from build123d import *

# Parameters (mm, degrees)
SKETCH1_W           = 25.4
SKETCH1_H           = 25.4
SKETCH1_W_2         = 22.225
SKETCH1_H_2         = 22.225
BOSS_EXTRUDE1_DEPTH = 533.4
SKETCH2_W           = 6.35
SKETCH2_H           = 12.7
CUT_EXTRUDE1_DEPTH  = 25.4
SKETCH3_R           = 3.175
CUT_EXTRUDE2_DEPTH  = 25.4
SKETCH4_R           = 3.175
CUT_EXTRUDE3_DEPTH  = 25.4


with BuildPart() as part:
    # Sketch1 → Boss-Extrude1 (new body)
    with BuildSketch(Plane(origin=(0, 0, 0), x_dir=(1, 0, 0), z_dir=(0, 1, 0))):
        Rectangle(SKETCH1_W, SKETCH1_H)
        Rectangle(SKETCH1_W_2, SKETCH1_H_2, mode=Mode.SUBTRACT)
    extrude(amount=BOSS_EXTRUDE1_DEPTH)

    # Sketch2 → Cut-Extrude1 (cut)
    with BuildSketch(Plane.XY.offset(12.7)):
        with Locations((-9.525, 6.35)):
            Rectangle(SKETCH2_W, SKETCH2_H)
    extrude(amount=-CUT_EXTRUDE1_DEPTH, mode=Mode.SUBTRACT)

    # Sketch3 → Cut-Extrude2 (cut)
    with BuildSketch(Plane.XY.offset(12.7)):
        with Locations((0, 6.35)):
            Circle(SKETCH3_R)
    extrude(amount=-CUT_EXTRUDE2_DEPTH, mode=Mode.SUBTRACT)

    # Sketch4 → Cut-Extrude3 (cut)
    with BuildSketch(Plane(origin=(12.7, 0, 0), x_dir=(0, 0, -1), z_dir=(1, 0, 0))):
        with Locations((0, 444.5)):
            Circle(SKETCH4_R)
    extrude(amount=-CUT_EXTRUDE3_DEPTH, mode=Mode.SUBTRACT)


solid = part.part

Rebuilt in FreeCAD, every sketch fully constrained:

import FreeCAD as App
import Part
import Sketcher
from FreeCAD import Vector
Q = App.Units.Quantity

doc = App.newDocument("Part")
body = doc.addObject("PartDesign::Body", "Body")

# Sketch on XZ plane
sketch1 = doc.addObject("Sketcher::SketchObject", "Sketch")
body.addObject(sketch1)
sketch1.AttachmentSupport = (doc.XZ_Plane, [""])
sketch1.MapMode = "FlatFace"
sketch1.addGeometry([
    Part.LineSegment(Vector(-13, -13, 0), Vector(-13, 13, 0)),  # 0
    Part.LineSegment(Vector(-13, 13, 0), Vector(13, 13, 0)),  # 1
    Part.LineSegment(Vector(13, 13, 0), Vector(13, -13, 0)),  # 2
    Part.LineSegment(Vector(13, -13, 0), Vector(-13, -13, 0)),  # 3
    Part.LineSegment(Vector(11, 11, 0), Vector(-11, 11, 0)),  # 4
    Part.LineSegment(Vector(-11, 11, 0), Vector(-11, -11, 0)),  # 5
    Part.LineSegment(Vector(-11, -11, 0), Vector(11, -11, 0)),  # 6
    Part.LineSegment(Vector(11, -11, 0), Vector(11, 11, 0)),  # 7
], False)
sketch1.addConstraint([
    Sketcher.Constraint("Coincident", 0, 2, 1, 1),
    Sketcher.Constraint("Coincident", 1, 2, 2, 1),
    Sketcher.Constraint("Coincident", 2, 2, 3, 1),
    Sketcher.Constraint("Coincident", 3, 2, 0, 1),
    Sketcher.Constraint("Coincident", 4, 2, 5, 1),
    Sketcher.Constraint("Coincident", 5, 2, 6, 1),
    Sketcher.Constraint("Coincident", 6, 2, 7, 1),
    Sketcher.Constraint("Coincident", 7, 2, 4, 1),
    Sketcher.Constraint("Vertical", 0),
    Sketcher.Constraint("Horizontal", 1),
    Sketcher.Constraint("Vertical", 2),
    Sketcher.Constraint("Horizontal", 3),
    Sketcher.Constraint("Horizontal", 4),
    Sketcher.Constraint("Vertical", 5),
    Sketcher.Constraint("Horizontal", 6),
    Sketcher.Constraint("Vertical", 7),
    Sketcher.Constraint("Symmetric", 0, 2, 2, 2, -1, 1),
    Sketcher.Constraint("Symmetric", 4, 2, 6, 2, -1, 1),
    Sketcher.Constraint("Equal", 3, 0),
    Sketcher.Constraint("Equal", 6, 5),
    Sketcher.Constraint("DistanceX", 1, 1, 1, 2, Q("1 in")),
    Sketcher.Constraint("DistanceX", 4, 2, 4, 1, Q("0.875 in")),
])
pad1 = doc.addObject("PartDesign::Pad", "Pad")
body.addObject(pad1)
pad1.Profile = sketch1
pad1.Length = Q("21 in")
pad1.Reversed = True

# Sketch on XY plane
sketch2 = doc.addObject("Sketcher::SketchObject", "Sketch001")
body.addObject(sketch2)
sketch2.AttachmentSupport = (doc.XY_Plane, [""])
sketch2.MapMode = "FlatFace"
sketch2.AttachmentOffset = App.Placement(Vector(0, 0, 0.5 * 25.4), App.Rotation())
sketch2.addGeometry([
    Part.LineSegment(Vector(-13, 13, 0), Vector(-13, 0, 0)),
    Part.LineSegment(Vector(-13, 0, 0), Vector(-6, 0, 0)),
    Part.LineSegment(Vector(-6, 0, 0), Vector(-6, 13, 0)),
    Part.LineSegment(Vector(-6, 13, 0), Vector(-13, 13, 0)),
], False)
sketch2.addConstraint([
    Sketcher.Constraint("Coincident", 0, 2, 1, 1),
    Sketcher.Constraint("Coincident", 1, 2, 2, 1),
    Sketcher.Constraint("Coincident", 2, 2, 3, 1),
    Sketcher.Constraint("Coincident", 3, 2, 0, 1),
    Sketcher.Constraint("Vertical", 0),
    Sketcher.Constraint("Horizontal", 1),
    Sketcher.Constraint("Vertical", 2),
    Sketcher.Constraint("Horizontal", 3),
    Sketcher.Constraint("PointOnObject", 0, 2, -1),
    Sketcher.Constraint("DistanceY", 0, 2, 0, 1, Q("0.5 in")),
    Sketcher.Constraint("DistanceX", 1, 1, 1, 2, Q("0.25 in")),
    Sketcher.Constraint("DistanceX", 0, 2, -1, 1, Q("0.5 in")),
])
pocket1 = doc.addObject("PartDesign::Pocket", "Pocket")
body.addObject(pocket1)
pocket1.Profile = sketch2
pocket1.Length = Q("1 in")

# Sketch on XY plane
sketch3 = doc.addObject("Sketcher::SketchObject", "Sketch002")
body.addObject(sketch3)
sketch3.AttachmentSupport = (doc.XY_Plane, [""])
sketch3.MapMode = "FlatFace"
sketch3.AttachmentOffset = App.Placement(Vector(0, 0, 0.5 * 25.4), App.Rotation())
sketch3.addGeometry(Part.Circle(Vector(0, 6.3, 0), Vector(0, 0, 1), 3.2), False)
sketch3.addConstraint([
    Sketcher.Constraint("PointOnObject", 0, 3, -2),
    Sketcher.Constraint("Diameter", 0, Q("0.25 in")),
    Sketcher.Constraint("DistanceY", -1, 1, 0, 3, Q("0.25 in")),
])
pocket2 = doc.addObject("PartDesign::Pocket", "Pocket001")
body.addObject(pocket2)
pocket2.Profile = sketch3
pocket2.Length = Q("1 in")

# Sketch on YZ plane
sketch4 = doc.addObject("Sketcher::SketchObject", "Sketch003")
body.addObject(sketch4)
sketch4.AttachmentSupport = (doc.YZ_Plane, [""])
sketch4.MapMode = "FlatFace"
sketch4.AttachmentOffset = App.Placement(Vector(0, 0, 0.5 * 25.4), App.Rotation())
sketch4.addGeometry(Part.Circle(Vector(444.5, 0, 0), Vector(0, 0, 1), 3.2), False)
sketch4.addConstraint([
    Sketcher.Constraint("PointOnObject", 0, 3, -1),
    Sketcher.Constraint("Diameter", 0, Q("0.25 in")),
    Sketcher.Constraint("DistanceX", -1, 1, 0, 3, Q("17.5 in")),
])
pocket3 = doc.addObject("PartDesign::Pocket", "Pocket002")
body.addObject(pocket3)
pocket3.Profile = sketch4
pocket3.Length = Q("1 in")

doc.recompute()
